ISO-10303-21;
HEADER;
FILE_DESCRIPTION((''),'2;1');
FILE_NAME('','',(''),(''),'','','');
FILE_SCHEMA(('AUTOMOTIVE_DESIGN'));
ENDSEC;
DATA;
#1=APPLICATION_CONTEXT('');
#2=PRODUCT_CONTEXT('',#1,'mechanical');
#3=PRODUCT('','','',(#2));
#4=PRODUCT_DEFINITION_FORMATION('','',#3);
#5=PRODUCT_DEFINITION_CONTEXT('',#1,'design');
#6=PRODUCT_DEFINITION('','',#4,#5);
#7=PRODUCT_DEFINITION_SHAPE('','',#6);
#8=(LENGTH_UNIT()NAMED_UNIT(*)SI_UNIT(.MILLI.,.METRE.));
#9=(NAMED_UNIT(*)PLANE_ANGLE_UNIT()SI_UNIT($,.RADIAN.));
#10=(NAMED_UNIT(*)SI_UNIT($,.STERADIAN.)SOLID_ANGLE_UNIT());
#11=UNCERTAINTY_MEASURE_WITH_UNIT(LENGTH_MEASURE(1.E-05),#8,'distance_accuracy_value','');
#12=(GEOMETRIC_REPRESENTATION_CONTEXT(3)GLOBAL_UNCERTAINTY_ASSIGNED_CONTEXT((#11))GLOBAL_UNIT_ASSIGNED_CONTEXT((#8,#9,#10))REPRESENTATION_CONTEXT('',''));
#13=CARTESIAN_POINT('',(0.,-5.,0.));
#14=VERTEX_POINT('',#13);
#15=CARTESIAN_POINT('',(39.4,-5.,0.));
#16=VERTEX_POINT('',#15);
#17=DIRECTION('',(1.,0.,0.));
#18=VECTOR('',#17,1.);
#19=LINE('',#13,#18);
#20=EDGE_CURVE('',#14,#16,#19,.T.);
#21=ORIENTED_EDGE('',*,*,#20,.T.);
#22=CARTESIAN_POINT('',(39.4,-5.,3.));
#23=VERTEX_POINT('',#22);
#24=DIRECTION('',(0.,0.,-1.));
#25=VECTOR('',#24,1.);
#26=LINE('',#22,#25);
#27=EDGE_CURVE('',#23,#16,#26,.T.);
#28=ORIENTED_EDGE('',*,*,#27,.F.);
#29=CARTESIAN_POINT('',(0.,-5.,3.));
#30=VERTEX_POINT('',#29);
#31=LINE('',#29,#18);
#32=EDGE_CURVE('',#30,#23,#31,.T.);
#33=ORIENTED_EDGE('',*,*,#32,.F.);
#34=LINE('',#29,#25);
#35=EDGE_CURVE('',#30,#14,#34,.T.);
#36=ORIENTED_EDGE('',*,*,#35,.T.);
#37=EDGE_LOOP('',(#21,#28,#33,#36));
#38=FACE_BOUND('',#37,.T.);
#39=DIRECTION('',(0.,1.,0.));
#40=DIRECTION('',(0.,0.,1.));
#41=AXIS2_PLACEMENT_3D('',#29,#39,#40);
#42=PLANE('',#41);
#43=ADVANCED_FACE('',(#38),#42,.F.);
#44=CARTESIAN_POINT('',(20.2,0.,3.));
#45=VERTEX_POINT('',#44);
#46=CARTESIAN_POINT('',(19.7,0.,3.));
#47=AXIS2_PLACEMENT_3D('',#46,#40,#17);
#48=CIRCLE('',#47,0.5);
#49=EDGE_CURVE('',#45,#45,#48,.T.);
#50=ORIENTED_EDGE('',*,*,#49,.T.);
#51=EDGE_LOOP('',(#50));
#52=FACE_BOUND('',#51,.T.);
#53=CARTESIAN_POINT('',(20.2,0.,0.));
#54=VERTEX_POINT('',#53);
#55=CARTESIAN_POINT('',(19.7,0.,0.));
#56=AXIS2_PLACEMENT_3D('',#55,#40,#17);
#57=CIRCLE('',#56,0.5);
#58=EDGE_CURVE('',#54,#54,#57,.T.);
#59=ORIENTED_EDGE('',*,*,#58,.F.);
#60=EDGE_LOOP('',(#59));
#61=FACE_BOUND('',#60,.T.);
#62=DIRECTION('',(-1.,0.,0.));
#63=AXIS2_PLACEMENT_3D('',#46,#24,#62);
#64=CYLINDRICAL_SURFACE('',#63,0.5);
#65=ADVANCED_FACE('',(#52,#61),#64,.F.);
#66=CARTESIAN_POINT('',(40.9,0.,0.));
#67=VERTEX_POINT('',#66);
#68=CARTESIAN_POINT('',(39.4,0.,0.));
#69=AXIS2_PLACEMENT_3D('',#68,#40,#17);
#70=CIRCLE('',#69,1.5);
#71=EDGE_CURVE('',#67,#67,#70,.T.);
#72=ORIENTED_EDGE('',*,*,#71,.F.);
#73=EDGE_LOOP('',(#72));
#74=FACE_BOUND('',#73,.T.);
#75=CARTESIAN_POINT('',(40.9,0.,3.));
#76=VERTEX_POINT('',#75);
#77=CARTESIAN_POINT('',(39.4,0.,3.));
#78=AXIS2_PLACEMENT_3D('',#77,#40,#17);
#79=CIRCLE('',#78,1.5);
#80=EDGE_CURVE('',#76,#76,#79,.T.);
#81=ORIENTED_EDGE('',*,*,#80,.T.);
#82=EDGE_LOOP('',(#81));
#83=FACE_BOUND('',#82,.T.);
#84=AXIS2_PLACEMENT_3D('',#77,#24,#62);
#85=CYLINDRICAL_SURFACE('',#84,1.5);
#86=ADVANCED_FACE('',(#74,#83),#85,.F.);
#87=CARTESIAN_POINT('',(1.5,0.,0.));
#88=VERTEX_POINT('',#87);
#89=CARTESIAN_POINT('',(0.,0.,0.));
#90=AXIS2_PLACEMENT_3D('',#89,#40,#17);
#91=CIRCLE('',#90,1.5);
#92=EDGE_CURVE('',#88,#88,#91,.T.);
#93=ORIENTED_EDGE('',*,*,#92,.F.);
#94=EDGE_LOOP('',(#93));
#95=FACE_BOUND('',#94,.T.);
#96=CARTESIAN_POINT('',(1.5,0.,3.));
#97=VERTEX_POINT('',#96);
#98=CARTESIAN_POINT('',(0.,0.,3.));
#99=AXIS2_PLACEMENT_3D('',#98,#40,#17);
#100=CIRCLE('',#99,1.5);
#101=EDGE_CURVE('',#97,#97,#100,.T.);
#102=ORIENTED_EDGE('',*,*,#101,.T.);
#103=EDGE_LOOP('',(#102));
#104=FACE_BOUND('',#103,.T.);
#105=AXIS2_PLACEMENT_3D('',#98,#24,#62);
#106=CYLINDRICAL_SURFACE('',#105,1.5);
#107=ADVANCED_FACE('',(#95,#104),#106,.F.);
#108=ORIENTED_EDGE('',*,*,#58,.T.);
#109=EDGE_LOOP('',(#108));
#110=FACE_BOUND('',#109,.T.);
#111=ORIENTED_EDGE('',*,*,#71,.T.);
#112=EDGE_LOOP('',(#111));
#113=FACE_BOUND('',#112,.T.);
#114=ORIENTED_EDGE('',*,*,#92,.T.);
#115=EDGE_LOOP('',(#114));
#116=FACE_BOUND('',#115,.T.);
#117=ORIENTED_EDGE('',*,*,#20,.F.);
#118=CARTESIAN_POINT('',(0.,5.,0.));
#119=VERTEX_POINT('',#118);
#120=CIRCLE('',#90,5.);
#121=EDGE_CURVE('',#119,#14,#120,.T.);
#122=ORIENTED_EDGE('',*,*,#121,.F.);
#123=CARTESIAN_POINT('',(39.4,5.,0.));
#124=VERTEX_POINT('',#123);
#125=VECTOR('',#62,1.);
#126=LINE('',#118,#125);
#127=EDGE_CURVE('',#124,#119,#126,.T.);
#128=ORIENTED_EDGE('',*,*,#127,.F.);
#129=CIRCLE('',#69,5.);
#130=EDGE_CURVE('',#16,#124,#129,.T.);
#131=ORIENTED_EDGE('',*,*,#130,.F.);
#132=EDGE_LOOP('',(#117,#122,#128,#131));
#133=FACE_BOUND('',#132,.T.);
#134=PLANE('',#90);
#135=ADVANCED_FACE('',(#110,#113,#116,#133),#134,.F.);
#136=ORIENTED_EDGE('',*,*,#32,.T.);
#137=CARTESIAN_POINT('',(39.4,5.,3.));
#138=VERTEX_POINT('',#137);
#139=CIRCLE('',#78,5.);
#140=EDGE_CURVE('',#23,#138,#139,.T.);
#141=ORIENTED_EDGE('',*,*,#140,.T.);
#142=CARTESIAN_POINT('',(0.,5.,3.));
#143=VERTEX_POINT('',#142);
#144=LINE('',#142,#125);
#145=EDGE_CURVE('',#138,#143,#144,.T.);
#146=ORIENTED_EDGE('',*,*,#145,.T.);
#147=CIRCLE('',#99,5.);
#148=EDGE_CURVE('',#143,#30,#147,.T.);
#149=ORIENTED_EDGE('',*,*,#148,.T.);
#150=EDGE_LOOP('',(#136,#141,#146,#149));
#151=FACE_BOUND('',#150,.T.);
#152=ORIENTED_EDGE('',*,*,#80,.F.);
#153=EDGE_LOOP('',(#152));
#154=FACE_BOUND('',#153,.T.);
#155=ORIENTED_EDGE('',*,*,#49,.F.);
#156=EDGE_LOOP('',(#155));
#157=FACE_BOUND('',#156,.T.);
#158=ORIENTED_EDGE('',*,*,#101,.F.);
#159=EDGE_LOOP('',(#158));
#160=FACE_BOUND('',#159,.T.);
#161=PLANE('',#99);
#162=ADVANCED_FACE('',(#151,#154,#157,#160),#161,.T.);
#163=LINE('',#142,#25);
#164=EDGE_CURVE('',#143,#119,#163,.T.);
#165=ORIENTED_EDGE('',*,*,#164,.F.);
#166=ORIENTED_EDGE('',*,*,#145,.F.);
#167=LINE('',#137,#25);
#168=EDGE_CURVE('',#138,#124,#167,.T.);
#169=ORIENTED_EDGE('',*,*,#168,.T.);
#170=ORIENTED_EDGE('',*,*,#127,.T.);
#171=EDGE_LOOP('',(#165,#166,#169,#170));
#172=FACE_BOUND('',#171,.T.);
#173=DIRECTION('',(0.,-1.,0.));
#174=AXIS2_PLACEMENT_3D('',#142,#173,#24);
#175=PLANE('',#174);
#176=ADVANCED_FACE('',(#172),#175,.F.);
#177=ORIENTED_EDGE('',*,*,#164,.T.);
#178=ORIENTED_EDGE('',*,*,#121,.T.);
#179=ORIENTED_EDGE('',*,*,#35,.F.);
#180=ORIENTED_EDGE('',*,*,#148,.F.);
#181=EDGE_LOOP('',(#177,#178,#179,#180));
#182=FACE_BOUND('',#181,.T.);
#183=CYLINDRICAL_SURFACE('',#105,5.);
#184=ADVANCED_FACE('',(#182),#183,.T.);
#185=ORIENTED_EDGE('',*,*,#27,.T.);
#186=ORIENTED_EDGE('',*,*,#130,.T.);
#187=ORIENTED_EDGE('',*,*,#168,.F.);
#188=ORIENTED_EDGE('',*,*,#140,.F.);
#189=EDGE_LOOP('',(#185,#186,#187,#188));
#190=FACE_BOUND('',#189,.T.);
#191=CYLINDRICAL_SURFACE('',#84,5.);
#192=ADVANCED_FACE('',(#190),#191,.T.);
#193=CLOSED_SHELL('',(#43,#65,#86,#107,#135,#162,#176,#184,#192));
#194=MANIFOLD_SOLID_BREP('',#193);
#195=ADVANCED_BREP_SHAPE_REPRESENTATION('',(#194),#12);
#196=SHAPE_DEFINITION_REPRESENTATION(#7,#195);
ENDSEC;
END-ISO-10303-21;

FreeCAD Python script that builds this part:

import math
import FreeCAD as App
import Part
import Sketcher
from FreeCAD import Vector

doc = App.newDocument("Part")
body = doc.addObject("PartDesign::Body", "Body")

# Sketch on XY plane
sketch1 = body.newObject("Sketcher::SketchObject", "Sketch")
sketch1.AttachmentSupport = (doc.getObject("XY_Plane"), [""])
sketch1.MapMode = "FlatFace"
sketch1.addGeometry([
    Part.LineSegment(Vector(39.4, 5, 0), Vector(0, 5, 0)),  # 0
    Part.ArcOfCircle(Part.Circle(Vector(0, 0, 0), Vector(0, 0, 1), 5), math.radians(90), math.radians(270)),  # 1
    Part.LineSegment(Vector(0, -5, 0), Vector(39.4, -5, 0)),  # 2
    Part.ArcOfCircle(Part.Circle(Vector(39.4, 0, 0), Vector(0, 0, 1), 5), math.radians(-90), math.radians(90)),  # 3
    Part.Circle(Vector(39.4, 0, 0), Vector(0, 0, 1), 1.5),  # 4
    Part.Circle(Vector(19.7, 0, 0), Vector(0, 0, 1), 0.5),  # 5
    Part.Circle(Vector(0, 0, 0), Vector(0, 0, 1), 1.5),  # 6
], False)
sketch1.addConstraint([
    Sketcher.Constraint("Tangent", 0, 2, 1, 1),
    Sketcher.Constraint("Tangent", 1, 2, 2, 1),
    Sketcher.Constraint("Tangent", 2, 2, 3, 1),
    Sketcher.Constraint("Tangent", 3, 2, 0, 1),
    Sketcher.Constraint("Horizontal", 0),
    Sketcher.Constraint("Horizontal", 2),
    Sketcher.Constraint("Coincident", 1, 3, -1, 1),
    Sketcher.Constraint("Coincident", 6, 3, -1, 1),
    Sketcher.Constraint("Coincident", 4, 3, 3, 3),
    Sketcher.Constraint("Equal", 4, 6),
    Sketcher.Constraint("PointOnObject", 5, 3, -1),
    Sketcher.Constraint("Diameter", 4, 3.0),
    Sketcher.Constraint("Diameter", 5, 1.0),
    Sketcher.Constraint("Radius", 1, 5.0),
    Sketcher.Constraint("DistanceX", 0, 2, 0, 1, 39.4),
    Sketcher.Constraint("DistanceX", -1, 1, 5, 3, 19.7),
])
pad1 = body.newObject("PartDesign::Pad", "Pad")
pad1.Profile = sketch1
pad1.Length = 3

doc.recompute()
